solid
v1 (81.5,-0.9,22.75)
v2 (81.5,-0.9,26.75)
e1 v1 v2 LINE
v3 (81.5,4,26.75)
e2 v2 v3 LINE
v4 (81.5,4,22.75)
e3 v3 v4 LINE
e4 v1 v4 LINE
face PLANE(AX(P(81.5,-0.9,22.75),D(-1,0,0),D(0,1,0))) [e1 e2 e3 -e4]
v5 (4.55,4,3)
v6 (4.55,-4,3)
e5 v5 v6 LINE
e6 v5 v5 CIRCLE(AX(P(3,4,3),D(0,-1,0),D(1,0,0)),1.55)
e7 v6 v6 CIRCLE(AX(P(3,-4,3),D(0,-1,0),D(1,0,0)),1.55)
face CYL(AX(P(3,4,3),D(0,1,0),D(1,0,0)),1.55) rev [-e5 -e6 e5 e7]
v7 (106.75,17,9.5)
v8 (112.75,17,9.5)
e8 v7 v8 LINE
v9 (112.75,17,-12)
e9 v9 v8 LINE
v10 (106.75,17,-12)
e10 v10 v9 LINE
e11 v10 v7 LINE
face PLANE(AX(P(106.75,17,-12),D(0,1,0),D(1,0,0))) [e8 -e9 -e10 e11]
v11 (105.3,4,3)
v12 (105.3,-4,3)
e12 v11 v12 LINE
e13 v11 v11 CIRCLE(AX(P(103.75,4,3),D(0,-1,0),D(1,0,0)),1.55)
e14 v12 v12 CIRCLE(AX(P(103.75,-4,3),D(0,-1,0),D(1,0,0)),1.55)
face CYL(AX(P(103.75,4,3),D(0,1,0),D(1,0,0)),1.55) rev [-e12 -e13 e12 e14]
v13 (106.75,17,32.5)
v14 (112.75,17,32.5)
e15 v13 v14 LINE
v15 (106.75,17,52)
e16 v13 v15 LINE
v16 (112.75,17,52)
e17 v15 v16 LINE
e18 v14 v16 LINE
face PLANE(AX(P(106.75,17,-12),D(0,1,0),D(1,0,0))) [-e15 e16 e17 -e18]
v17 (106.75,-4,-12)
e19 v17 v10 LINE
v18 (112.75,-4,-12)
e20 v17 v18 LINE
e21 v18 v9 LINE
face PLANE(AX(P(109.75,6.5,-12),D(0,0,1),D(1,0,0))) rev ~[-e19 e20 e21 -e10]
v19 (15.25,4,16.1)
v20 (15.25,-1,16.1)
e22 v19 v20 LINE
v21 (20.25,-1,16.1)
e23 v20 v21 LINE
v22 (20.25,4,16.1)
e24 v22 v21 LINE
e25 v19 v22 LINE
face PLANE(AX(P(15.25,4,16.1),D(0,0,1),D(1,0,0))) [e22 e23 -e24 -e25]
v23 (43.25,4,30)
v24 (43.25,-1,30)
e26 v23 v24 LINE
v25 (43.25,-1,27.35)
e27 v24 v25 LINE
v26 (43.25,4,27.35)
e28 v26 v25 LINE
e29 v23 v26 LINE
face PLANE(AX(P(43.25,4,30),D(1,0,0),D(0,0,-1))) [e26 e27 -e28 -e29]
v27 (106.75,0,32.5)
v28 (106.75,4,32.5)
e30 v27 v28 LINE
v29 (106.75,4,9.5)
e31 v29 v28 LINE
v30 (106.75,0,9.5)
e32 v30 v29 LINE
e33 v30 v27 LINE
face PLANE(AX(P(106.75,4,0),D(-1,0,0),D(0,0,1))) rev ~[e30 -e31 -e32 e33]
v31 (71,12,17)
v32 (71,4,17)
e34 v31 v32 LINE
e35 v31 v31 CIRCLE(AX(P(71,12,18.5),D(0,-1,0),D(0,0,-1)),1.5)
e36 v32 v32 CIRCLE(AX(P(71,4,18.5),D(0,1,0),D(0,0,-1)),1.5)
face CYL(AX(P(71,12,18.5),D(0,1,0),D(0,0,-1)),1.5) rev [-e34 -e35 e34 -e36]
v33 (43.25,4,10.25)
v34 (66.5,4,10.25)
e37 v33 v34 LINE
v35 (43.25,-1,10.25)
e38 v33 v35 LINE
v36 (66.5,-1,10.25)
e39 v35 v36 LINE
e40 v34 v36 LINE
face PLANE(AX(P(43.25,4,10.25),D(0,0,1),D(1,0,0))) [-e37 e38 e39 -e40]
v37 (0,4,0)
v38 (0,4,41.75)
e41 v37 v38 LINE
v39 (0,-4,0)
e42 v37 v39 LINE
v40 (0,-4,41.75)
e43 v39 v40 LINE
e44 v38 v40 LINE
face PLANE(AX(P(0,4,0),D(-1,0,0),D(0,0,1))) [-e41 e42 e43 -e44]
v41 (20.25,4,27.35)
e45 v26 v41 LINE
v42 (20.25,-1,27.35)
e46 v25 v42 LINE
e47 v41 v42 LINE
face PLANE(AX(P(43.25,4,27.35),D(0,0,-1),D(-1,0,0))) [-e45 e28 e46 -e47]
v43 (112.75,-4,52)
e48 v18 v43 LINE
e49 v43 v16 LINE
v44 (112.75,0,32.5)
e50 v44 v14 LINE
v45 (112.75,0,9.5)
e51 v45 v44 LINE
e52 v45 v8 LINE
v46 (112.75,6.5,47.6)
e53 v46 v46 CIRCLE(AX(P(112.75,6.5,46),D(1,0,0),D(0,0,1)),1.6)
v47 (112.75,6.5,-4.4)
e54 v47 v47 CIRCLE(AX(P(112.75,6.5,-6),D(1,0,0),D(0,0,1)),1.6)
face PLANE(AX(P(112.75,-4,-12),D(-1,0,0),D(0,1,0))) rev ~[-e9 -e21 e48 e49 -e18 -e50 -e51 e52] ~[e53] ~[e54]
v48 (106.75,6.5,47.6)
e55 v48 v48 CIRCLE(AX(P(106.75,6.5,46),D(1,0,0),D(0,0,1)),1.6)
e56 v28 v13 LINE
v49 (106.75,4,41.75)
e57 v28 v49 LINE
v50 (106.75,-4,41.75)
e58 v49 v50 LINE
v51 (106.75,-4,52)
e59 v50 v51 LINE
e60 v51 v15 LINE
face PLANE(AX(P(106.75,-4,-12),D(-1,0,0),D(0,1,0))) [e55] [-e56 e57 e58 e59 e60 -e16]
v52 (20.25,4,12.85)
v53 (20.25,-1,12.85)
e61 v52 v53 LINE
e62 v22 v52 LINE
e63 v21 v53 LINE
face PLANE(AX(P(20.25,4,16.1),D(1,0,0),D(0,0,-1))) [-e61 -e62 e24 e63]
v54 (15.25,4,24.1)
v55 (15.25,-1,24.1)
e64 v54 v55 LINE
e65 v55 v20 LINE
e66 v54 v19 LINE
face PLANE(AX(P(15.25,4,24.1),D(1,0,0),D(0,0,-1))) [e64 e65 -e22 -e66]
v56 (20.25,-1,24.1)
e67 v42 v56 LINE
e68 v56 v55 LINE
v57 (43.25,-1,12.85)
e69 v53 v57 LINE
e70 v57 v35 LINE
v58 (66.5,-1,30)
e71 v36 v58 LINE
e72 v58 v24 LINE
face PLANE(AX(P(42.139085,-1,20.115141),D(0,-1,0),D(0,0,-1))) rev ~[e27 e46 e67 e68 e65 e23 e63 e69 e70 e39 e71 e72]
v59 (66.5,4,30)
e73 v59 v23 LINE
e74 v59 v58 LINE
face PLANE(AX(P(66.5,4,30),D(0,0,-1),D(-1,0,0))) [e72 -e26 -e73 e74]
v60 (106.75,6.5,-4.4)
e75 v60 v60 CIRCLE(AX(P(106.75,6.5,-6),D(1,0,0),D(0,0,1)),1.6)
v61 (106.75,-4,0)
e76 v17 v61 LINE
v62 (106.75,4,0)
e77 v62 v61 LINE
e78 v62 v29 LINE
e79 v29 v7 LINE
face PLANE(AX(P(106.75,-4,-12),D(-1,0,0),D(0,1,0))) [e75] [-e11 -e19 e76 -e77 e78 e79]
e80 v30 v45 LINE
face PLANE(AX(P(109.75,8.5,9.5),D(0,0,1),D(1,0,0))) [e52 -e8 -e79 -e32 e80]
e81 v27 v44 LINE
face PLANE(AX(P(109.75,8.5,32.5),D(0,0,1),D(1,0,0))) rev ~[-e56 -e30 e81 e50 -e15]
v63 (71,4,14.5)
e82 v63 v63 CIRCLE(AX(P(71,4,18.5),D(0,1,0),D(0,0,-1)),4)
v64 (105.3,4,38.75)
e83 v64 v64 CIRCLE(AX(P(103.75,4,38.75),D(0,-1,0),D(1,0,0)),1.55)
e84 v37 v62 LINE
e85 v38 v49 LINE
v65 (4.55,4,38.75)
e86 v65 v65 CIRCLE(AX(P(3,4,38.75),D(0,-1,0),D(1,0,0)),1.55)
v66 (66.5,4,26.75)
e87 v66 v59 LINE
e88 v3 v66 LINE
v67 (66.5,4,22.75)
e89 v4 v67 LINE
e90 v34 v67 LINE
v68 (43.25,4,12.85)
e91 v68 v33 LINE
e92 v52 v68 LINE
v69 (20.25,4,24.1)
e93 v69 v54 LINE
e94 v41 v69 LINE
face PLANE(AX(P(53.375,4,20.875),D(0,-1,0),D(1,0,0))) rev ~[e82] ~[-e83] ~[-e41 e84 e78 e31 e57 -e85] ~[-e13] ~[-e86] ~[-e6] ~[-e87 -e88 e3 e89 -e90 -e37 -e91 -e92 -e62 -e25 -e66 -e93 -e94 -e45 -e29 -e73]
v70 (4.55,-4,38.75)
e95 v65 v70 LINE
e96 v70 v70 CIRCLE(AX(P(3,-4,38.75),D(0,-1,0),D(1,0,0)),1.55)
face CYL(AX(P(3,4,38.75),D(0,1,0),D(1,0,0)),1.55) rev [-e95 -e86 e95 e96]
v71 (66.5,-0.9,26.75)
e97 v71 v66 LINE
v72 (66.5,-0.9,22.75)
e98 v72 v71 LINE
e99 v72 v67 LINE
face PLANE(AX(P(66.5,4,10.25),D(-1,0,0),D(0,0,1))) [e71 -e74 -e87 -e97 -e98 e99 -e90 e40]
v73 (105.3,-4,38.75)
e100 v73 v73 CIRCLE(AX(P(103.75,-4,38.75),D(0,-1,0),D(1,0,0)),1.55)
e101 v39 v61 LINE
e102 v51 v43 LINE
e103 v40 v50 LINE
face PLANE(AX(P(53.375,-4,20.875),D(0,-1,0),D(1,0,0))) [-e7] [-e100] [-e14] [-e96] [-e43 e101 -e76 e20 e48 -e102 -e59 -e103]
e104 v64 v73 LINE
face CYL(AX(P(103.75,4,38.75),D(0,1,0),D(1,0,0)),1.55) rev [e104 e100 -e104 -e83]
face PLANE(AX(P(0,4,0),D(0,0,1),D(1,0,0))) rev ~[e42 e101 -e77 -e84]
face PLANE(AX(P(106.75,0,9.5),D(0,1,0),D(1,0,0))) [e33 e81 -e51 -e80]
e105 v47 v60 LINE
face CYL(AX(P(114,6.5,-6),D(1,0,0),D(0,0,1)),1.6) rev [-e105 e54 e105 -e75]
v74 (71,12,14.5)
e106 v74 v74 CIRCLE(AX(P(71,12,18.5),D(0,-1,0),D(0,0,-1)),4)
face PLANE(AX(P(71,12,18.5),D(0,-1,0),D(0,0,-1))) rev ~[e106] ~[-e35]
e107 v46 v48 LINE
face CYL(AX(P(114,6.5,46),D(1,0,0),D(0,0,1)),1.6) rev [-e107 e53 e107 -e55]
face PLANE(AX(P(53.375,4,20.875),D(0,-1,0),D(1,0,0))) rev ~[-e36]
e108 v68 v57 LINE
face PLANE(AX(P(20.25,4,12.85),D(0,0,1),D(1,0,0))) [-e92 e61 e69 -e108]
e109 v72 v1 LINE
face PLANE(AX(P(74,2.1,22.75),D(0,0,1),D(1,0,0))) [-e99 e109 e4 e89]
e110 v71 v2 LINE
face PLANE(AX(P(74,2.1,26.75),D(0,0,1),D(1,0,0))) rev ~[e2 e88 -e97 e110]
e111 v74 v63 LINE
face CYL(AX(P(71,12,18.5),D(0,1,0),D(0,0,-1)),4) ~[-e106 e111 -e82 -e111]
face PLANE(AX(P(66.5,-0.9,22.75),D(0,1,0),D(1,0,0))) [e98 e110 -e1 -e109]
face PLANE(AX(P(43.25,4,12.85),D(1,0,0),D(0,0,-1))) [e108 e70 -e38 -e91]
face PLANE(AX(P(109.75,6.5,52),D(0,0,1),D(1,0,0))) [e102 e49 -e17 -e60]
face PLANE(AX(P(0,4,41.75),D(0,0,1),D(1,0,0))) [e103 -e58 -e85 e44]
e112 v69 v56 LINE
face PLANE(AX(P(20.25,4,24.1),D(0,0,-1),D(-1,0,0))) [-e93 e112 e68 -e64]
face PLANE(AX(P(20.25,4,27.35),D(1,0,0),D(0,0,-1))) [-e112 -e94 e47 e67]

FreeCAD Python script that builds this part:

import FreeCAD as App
import Part
import Sketcher


def add_polygon(sketch, points):
    """Adds a closed chain of lines whose ends are joined by coincident constraints."""
    first, n = sketch.GeometryCount, len(points)
    for a, b in zip(points, points[1:] + points[:1]):
        sketch.addGeometry(Part.LineSegment(App.Vector(*a, 0), App.Vector(*b, 0)), False)
    for i in range(n):
        sketch.addConstraint(Sketcher.Constraint("Coincident", first + i, 2, first + (i + 1) % n, 1))

doc = App.newDocument("Part")
body = doc.addObject("PartDesign::Body", "Body")

sketch1 = body.newObject("Sketcher::SketchObject", "Sketch")
sketch1.AttachmentSupport = (doc.getObject("XY_Plane"), [""])
sketch1.MapMode = "FlatFace"
sketch1.AttachmentOffset = App.Placement(App.Vector(0, 0, 22.75), App.Rotation())
add_polygon(sketch1, [(66.5, 5.1), (66.5, -0.9), (81.5, -0.9), (81.5, 5.1)])
sketch1.addConstraint([
    Sketcher.Constraint("Vertical", 0),
    Sketcher.Constraint("Horizontal", 1),
    Sketcher.Constraint("Vertical", 2),
    Sketcher.Constraint("Horizontal", 3),
    Sketcher.Constraint("DistanceX", 1, 1, 1, 2, 15.0),
    Sketcher.Constraint("DistanceY", 0, 2, 0, 1, 6.0),
    Sketcher.Constraint("DistanceX", -1, 1, 0, 2, 66.5),
    Sketcher.Constraint("DistanceY", 0, 2, -1, 1, 0.9),
])
pad1 = body.newObject("PartDesign::Pad", "Pad")
pad1.Profile = sketch1
pad1.Length = 4
body2 = doc.addObject("PartDesign::Body", "Body001")

sketch2 = body2.newObject("Sketcher::SketchObject", "Sketch001")
sketch2.AttachmentSupport = (doc.getObject("YZ_Plane001"), [""])
sketch2.MapMode = "FlatFace"
add_polygon(sketch2, [(10.25, 66.5), (10.25, 43.25), (12.9, 43.25), (12.9, 20.25), (16.15, 20.25), (16.15, 15.25), (24.15, 15.25), (24.15, 20.25), (27.4, 20.25), (27.4, 43.25), (30, 43.25), (30, 66.5)])
sketch2.addConstraint([
    Sketcher.Constraint("Vertical", 0),
    Sketcher.Constraint("Horizontal", 1),
    Sketcher.Constraint("Vertical", 2),
    Sketcher.Constraint("Horizontal", 3),
    Sketcher.Constraint("Vertical", 4),
    Sketcher.Constraint("Horizontal", 5),
    Sketcher.Constraint("Vertical", 6),
    Sketcher.Constraint("Horizontal", 7),
    Sketcher.Constraint("Vertical", 8),
    Sketcher.Constraint("Horizontal", 9),
    Sketcher.Constraint("Vertical", 10),
    Sketcher.Constraint("Horizontal", 11),
    Sketcher.Constraint("Horizontal", 3, 2, 6, 2),
    Sketcher.Constraint("Horizontal", 1, 2, 8, 2),
    Sketcher.Constraint("Equal", 3, 7),
    Sketcher.Constraint("DistanceX", 5, 1, 5, 2, 8.0),
    Sketcher.Constraint("DistanceY", 2, 2, 2, 1, 23.0),
    Sketcher.Constraint("DistanceY", 4, 2, 4, 1, 5.0),
    Sketcher.Constraint("DistanceX", 9, 1, 9, 2, 2.6),
    Sketcher.Constraint("DistanceX", -1, 1, 9, 2, 30.0),
    Sketcher.Constraint("DistanceX", 1, 1, 1, 2, 2.65),
    Sketcher.Constraint("DistanceX", 3, 1, 3, 2, 3.25),
    Sketcher.Constraint("DistanceY", 0, 2, 0, 1, 23.25),
    Sketcher.Constraint("DistanceY", -1, 1, 10, 2, 66.5),
])
pad2 = body2.newObject("PartDesign::Pad", "Pad001")
pad2.Profile = sketch2
pad2.Length = 5
body3 = doc.addObject("PartDesign::Body", "Body002")
doc.recompute()

body2.Placement = App.Placement(App.Vector(0, 0, 0), App.Rotation(App.Vector(1, 0, 0), 270))
boolean = body3.newObject("PartDesign::Boolean", "Boolean")
boolean.Type = "Fuse"
boolean.addObjects([body2])
body4 = doc.addObject("PartDesign::Body", "Body003")
doc.recompute()

body3.Placement = App.Placement(App.Vector(0, 4, 40.25), App.Rotation(App.Vector(0, 0, 1), 270))
boolean2 = body4.newObject("PartDesign::Boolean", "Boolean001")
boolean2.Type = "Fuse"
boolean2.addObjects([body3])
body5 = doc.addObject("PartDesign::Body", "Body004")

sketch3 = body5.newObject("Sketcher::SketchObject", "Sketch002")
sketch3.AttachmentSupport = (doc.getObject("YZ_Plane004"), [""])
sketch3.MapMode = "FlatFace"
sketch3.AttachmentOffset = App.Placement(App.Vector(0, 0, 114), App.Rotation())
sketch3.addGeometry(Part.Circle(App.Vector(6.5, 46, 0), App.Vector(0, 0, 1), 1.6), False)
sketch3.addConstraint([
    Sketcher.Constraint("Diameter", 0, 3.2),
    Sketcher.Constraint("DistanceY", -1, 1, 0, 3, 46.0),
    Sketcher.Constraint("DistanceX", -1, 1, 0, 3, 6.5),
])
pad3 = body5.newObject("PartDesign::Pad", "Pad002")
pad3.Profile = sketch3
pad3.Length = 10
pad3.Reversed = True
body6 = doc.addObject("PartDesign::Body", "Body005")
body6.AllowCompound = True

sketch4 = body6.newObject("Sketcher::SketchObject", "Sketch003")
sketch4.AttachmentSupport = (doc.getObject("YZ_Plane005"), [""])
sketch4.MapMode = "FlatFace"
sketch4.AttachmentOffset = App.Placement(App.Vector(0, 0, 114), App.Rotation())
sketch4.addGeometry(Part.Circle(App.Vector(6.5, -6, 0), App.Vector(0, 0, 1), 1.6), False)
sketch4.addConstraint([
    Sketcher.Constraint("Diameter", 0, 3.2),
    Sketcher.Constraint("DistanceY", 0, 3, -1, 1, 6.0),
    Sketcher.Constraint("DistanceX", -1, 1, 0, 3, 6.5),
])
pad4 = body6.newObject("PartDesign::Pad", "Pad003")
pad4.Profile = sketch4
pad4.Length = 10
pad4.Reversed = True
doc.recompute()

boolean3 = body6.newObject("PartDesign::Boolean", "Boolean002")
boolean3.Type = "Fuse"
boolean3.addObjects([body5])
body7 = doc.addObject("PartDesign::Body", "Body006")

sketch5 = body7.newObject("Sketcher::SketchObject", "Sketch004")
sketch5.AttachmentSupport = (doc.getObject("YZ_Plane006"), [""])
sketch5.MapMode = "FlatFace"
add_polygon(sketch5, [(0, 41.75), (0, 0), (106.75, 0), (106.75, 41.75)])
sketch5.addGeometry(Part.Circle(App.Vector(3, 3, 0), App.Vector(0, 0, 1), 1.55), False)
sketch5.addGeometry(Part.Circle(App.Vector(103.75, 3, 0), App.Vector(0, 0, 1), 1.55), False)
sketch5.addGeometry(Part.Circle(App.Vector(3, 38.75, 0), App.Vector(0, 0, 1), 1.55), False)
sketch5.addGeometry(Part.Circle(App.Vector(103.75, 38.75, 0), App.Vector(0, 0, 1), 1.55), False)
sketch5.addConstraint([
    Sketcher.Constraint("Vertical", 0),
    Sketcher.Constraint("Horizontal", 1),
    Sketcher.Constraint("Vertical", 2),
    Sketcher.Constraint("Horizontal", 3),
    Sketcher.Constraint("Coincident", 0, 2, -1, 1),
    Sketcher.Constraint("Equal", 4, 5),
    Sketcher.Constraint("Equal", 5, 6),
    Sketcher.Constraint("Equal", 6, 7),
    Sketcher.Constraint("Horizontal", 4, 3, 5, 3),
    Sketcher.Constraint("Horizontal", 6, 3, 7, 3),
    Sketcher.Constraint("Vertical", 4, 3, 6, 3),
    Sketcher.Constraint("Vertical", 5, 3, 7, 3),
    Sketcher.Constraint("Diameter", 4, 3.1),
    Sketcher.Constraint("DistanceX", -1, 1, 4, 3, 3.0),
    Sketcher.Constraint("DistanceY", -1, 1, 4, 3, 3.0),
    Sketcher.Constraint("DistanceX", 5, 3, 1, 2, 3.0),
    Sketcher.Constraint("DistanceY", 7, 3, 2, 2, 3.0),
    Sketcher.Constraint("DistanceX", 1, 1, 1, 2, 106.75),
    Sketcher.Constraint("DistanceY", 0, 2, 0, 1, 41.75),
])
pad5 = body7.newObject("PartDesign::Pad", "Pad004")
pad5.Profile = sketch5
pad5.Length = 8
body8 = doc.addObject("PartDesign::Body", "Body007")
doc.recompute()

body7.Placement = App.Placement(App.Vector(0, 4, 0), App.Rotation(App.Vector(0, 0, 1), 270))
boolean4 = body8.newObject("PartDesign::Boolean", "Boolean003")
boolean4.Type = "Fuse"
boolean4.addObjects([body7])
body9 = doc.addObject("PartDesign::Body", "Body008")

sketch6 = body9.newObject("Sketcher::SketchObject", "Sketch005")
sketch6.AttachmentSupport = (doc.getObject("XY_Plane008"), [""])
sketch6.MapMode = "FlatFace"
sketch6.AttachmentOffset = App.Placement(App.Vector(0, 0, 9.5), App.Rotation())
add_polygon(sketch6, [(106.75, 17), (106.75, 0), (112.75, 0), (112.75, 17)])
sketch6.addConstraint([
    Sketcher.Constraint("Vertical", 0),
    Sketcher.Constraint("Horizontal", 1),
    Sketcher.Constraint("Vertical", 2),
    Sketcher.Constraint("Horizontal", 3),
    Sketcher.Constraint("PointOnObject", 0, 2, -1),
    Sketcher.Constraint("DistanceX", 1, 1, 1, 2, 6.0),
    Sketcher.Constraint("DistanceY", 0, 2, 0, 1, 17.0),
    Sketcher.Constraint("DistanceX", -1, 1, 0, 2, 106.75),
])
pad6 = body9.newObject("PartDesign::Pad", "Pad005")
pad6.Profile = sketch6
pad6.Length = 23
body10 = doc.addObject("PartDesign::Body", "Body009")

sketch7 = body10.newObject("Sketcher::SketchObject", "Sketch006")
sketch7.AttachmentSupport = (doc.getObject("XY_Plane009"), [""])
sketch7.MapMode = "FlatFace"
sketch7.AttachmentOffset = App.Placement(App.Vector(0, 0, -12), App.Rotation())
add_polygon(sketch7, [(106.75, 17), (106.75, -4), (112.75, -4), (112.75, 17)])
sketch7.addConstraint([
    Sketcher.Constraint("Vertical", 0),
    Sketcher.Constraint("Horizontal", 1),
    Sketcher.Constraint("Vertical", 2),
    Sketcher.Constraint("Horizontal", 3),
    Sketcher.Constraint("DistanceX", 1, 1, 1, 2, 6.0),
    Sketcher.Constraint("DistanceY", 0, 2, 0, 1, 21.0),
    Sketcher.Constraint("DistanceY", 0, 2, -1, 1, 4.0),
    Sketcher.Constraint("DistanceX", -1, 1, 0, 2, 106.75),
])
pad7 = body10.newObject("PartDesign::Pad", "Pad006")
pad7.Profile = sketch7
pad7.Length = 64
doc.recompute()

boolean5 = body10.newObject("PartDesign::Boolean", "Boolean004")
boolean5.Type = "Cut"
boolean5.addObjects([body9])
doc.recompute()

boolean6 = body10.newObject("PartDesign::Boolean", "Boolean005")
boolean6.Type = "Fuse"
boolean6.addObjects([body8])
doc.recompute()

boolean7 = body10.newObject("PartDesign::Boolean", "Boolean006")
boolean7.Type = "Cut"
boolean7.addObjects([body6])
doc.recompute()

boolean8 = body10.newObject("PartDesign::Boolean", "Boolean007")
boolean8.Type = "Cut"
boolean8.addObjects([body4])
doc.recompute()

boolean9 = body10.newObject("PartDesign::Boolean", "Boolean008")
boolean9.Type = "Cut"
boolean9.addObjects([body])
body11 = doc.addObject("PartDesign::Body", "Body010")

sketch8 = body11.newObject("Sketcher::SketchObject", "Sketch007")
sketch8.AttachmentSupport = (doc.getObject("XZ_Plane010"), [""])
sketch8.MapMode = "FlatFace"
sketch8.AttachmentOffset = App.Placement(App.Vector(0, 0, -12), App.Rotation())
sketch8.addGeometry([
    Part.Circle(App.Vector(71, 18.5, 0), App.Vector(0, 0, 1), 4),
    Part.Circle(App.Vector(71, 18.5, 0), App.Vector(0, 0, 1), 1.5),
], False)
sketch8.addConstraint([
    Sketcher.Constraint("Coincident", 1, 3, 0, 3),
    Sketcher.Constraint("Diameter", 0, 8.0),
    Sketcher.Constraint("Diameter", 1, 3.0),
    Sketcher.Constraint("DistanceX", -1, 1, 0, 3, 71.0),
    Sketcher.Constraint("DistanceY", -1, 1, 0, 3, 18.5),
])
pad8 = body11.newObject("PartDesign::Pad", "Pad007")
pad8.Profile = sketch8
pad8.Length = 12
doc.recompute()

boolean10 = body11.newObject("PartDesign::Boolean", "Boolean009")
boolean10.Type = "Fuse"
boolean10.addObjects([body10])

doc.recompute()
